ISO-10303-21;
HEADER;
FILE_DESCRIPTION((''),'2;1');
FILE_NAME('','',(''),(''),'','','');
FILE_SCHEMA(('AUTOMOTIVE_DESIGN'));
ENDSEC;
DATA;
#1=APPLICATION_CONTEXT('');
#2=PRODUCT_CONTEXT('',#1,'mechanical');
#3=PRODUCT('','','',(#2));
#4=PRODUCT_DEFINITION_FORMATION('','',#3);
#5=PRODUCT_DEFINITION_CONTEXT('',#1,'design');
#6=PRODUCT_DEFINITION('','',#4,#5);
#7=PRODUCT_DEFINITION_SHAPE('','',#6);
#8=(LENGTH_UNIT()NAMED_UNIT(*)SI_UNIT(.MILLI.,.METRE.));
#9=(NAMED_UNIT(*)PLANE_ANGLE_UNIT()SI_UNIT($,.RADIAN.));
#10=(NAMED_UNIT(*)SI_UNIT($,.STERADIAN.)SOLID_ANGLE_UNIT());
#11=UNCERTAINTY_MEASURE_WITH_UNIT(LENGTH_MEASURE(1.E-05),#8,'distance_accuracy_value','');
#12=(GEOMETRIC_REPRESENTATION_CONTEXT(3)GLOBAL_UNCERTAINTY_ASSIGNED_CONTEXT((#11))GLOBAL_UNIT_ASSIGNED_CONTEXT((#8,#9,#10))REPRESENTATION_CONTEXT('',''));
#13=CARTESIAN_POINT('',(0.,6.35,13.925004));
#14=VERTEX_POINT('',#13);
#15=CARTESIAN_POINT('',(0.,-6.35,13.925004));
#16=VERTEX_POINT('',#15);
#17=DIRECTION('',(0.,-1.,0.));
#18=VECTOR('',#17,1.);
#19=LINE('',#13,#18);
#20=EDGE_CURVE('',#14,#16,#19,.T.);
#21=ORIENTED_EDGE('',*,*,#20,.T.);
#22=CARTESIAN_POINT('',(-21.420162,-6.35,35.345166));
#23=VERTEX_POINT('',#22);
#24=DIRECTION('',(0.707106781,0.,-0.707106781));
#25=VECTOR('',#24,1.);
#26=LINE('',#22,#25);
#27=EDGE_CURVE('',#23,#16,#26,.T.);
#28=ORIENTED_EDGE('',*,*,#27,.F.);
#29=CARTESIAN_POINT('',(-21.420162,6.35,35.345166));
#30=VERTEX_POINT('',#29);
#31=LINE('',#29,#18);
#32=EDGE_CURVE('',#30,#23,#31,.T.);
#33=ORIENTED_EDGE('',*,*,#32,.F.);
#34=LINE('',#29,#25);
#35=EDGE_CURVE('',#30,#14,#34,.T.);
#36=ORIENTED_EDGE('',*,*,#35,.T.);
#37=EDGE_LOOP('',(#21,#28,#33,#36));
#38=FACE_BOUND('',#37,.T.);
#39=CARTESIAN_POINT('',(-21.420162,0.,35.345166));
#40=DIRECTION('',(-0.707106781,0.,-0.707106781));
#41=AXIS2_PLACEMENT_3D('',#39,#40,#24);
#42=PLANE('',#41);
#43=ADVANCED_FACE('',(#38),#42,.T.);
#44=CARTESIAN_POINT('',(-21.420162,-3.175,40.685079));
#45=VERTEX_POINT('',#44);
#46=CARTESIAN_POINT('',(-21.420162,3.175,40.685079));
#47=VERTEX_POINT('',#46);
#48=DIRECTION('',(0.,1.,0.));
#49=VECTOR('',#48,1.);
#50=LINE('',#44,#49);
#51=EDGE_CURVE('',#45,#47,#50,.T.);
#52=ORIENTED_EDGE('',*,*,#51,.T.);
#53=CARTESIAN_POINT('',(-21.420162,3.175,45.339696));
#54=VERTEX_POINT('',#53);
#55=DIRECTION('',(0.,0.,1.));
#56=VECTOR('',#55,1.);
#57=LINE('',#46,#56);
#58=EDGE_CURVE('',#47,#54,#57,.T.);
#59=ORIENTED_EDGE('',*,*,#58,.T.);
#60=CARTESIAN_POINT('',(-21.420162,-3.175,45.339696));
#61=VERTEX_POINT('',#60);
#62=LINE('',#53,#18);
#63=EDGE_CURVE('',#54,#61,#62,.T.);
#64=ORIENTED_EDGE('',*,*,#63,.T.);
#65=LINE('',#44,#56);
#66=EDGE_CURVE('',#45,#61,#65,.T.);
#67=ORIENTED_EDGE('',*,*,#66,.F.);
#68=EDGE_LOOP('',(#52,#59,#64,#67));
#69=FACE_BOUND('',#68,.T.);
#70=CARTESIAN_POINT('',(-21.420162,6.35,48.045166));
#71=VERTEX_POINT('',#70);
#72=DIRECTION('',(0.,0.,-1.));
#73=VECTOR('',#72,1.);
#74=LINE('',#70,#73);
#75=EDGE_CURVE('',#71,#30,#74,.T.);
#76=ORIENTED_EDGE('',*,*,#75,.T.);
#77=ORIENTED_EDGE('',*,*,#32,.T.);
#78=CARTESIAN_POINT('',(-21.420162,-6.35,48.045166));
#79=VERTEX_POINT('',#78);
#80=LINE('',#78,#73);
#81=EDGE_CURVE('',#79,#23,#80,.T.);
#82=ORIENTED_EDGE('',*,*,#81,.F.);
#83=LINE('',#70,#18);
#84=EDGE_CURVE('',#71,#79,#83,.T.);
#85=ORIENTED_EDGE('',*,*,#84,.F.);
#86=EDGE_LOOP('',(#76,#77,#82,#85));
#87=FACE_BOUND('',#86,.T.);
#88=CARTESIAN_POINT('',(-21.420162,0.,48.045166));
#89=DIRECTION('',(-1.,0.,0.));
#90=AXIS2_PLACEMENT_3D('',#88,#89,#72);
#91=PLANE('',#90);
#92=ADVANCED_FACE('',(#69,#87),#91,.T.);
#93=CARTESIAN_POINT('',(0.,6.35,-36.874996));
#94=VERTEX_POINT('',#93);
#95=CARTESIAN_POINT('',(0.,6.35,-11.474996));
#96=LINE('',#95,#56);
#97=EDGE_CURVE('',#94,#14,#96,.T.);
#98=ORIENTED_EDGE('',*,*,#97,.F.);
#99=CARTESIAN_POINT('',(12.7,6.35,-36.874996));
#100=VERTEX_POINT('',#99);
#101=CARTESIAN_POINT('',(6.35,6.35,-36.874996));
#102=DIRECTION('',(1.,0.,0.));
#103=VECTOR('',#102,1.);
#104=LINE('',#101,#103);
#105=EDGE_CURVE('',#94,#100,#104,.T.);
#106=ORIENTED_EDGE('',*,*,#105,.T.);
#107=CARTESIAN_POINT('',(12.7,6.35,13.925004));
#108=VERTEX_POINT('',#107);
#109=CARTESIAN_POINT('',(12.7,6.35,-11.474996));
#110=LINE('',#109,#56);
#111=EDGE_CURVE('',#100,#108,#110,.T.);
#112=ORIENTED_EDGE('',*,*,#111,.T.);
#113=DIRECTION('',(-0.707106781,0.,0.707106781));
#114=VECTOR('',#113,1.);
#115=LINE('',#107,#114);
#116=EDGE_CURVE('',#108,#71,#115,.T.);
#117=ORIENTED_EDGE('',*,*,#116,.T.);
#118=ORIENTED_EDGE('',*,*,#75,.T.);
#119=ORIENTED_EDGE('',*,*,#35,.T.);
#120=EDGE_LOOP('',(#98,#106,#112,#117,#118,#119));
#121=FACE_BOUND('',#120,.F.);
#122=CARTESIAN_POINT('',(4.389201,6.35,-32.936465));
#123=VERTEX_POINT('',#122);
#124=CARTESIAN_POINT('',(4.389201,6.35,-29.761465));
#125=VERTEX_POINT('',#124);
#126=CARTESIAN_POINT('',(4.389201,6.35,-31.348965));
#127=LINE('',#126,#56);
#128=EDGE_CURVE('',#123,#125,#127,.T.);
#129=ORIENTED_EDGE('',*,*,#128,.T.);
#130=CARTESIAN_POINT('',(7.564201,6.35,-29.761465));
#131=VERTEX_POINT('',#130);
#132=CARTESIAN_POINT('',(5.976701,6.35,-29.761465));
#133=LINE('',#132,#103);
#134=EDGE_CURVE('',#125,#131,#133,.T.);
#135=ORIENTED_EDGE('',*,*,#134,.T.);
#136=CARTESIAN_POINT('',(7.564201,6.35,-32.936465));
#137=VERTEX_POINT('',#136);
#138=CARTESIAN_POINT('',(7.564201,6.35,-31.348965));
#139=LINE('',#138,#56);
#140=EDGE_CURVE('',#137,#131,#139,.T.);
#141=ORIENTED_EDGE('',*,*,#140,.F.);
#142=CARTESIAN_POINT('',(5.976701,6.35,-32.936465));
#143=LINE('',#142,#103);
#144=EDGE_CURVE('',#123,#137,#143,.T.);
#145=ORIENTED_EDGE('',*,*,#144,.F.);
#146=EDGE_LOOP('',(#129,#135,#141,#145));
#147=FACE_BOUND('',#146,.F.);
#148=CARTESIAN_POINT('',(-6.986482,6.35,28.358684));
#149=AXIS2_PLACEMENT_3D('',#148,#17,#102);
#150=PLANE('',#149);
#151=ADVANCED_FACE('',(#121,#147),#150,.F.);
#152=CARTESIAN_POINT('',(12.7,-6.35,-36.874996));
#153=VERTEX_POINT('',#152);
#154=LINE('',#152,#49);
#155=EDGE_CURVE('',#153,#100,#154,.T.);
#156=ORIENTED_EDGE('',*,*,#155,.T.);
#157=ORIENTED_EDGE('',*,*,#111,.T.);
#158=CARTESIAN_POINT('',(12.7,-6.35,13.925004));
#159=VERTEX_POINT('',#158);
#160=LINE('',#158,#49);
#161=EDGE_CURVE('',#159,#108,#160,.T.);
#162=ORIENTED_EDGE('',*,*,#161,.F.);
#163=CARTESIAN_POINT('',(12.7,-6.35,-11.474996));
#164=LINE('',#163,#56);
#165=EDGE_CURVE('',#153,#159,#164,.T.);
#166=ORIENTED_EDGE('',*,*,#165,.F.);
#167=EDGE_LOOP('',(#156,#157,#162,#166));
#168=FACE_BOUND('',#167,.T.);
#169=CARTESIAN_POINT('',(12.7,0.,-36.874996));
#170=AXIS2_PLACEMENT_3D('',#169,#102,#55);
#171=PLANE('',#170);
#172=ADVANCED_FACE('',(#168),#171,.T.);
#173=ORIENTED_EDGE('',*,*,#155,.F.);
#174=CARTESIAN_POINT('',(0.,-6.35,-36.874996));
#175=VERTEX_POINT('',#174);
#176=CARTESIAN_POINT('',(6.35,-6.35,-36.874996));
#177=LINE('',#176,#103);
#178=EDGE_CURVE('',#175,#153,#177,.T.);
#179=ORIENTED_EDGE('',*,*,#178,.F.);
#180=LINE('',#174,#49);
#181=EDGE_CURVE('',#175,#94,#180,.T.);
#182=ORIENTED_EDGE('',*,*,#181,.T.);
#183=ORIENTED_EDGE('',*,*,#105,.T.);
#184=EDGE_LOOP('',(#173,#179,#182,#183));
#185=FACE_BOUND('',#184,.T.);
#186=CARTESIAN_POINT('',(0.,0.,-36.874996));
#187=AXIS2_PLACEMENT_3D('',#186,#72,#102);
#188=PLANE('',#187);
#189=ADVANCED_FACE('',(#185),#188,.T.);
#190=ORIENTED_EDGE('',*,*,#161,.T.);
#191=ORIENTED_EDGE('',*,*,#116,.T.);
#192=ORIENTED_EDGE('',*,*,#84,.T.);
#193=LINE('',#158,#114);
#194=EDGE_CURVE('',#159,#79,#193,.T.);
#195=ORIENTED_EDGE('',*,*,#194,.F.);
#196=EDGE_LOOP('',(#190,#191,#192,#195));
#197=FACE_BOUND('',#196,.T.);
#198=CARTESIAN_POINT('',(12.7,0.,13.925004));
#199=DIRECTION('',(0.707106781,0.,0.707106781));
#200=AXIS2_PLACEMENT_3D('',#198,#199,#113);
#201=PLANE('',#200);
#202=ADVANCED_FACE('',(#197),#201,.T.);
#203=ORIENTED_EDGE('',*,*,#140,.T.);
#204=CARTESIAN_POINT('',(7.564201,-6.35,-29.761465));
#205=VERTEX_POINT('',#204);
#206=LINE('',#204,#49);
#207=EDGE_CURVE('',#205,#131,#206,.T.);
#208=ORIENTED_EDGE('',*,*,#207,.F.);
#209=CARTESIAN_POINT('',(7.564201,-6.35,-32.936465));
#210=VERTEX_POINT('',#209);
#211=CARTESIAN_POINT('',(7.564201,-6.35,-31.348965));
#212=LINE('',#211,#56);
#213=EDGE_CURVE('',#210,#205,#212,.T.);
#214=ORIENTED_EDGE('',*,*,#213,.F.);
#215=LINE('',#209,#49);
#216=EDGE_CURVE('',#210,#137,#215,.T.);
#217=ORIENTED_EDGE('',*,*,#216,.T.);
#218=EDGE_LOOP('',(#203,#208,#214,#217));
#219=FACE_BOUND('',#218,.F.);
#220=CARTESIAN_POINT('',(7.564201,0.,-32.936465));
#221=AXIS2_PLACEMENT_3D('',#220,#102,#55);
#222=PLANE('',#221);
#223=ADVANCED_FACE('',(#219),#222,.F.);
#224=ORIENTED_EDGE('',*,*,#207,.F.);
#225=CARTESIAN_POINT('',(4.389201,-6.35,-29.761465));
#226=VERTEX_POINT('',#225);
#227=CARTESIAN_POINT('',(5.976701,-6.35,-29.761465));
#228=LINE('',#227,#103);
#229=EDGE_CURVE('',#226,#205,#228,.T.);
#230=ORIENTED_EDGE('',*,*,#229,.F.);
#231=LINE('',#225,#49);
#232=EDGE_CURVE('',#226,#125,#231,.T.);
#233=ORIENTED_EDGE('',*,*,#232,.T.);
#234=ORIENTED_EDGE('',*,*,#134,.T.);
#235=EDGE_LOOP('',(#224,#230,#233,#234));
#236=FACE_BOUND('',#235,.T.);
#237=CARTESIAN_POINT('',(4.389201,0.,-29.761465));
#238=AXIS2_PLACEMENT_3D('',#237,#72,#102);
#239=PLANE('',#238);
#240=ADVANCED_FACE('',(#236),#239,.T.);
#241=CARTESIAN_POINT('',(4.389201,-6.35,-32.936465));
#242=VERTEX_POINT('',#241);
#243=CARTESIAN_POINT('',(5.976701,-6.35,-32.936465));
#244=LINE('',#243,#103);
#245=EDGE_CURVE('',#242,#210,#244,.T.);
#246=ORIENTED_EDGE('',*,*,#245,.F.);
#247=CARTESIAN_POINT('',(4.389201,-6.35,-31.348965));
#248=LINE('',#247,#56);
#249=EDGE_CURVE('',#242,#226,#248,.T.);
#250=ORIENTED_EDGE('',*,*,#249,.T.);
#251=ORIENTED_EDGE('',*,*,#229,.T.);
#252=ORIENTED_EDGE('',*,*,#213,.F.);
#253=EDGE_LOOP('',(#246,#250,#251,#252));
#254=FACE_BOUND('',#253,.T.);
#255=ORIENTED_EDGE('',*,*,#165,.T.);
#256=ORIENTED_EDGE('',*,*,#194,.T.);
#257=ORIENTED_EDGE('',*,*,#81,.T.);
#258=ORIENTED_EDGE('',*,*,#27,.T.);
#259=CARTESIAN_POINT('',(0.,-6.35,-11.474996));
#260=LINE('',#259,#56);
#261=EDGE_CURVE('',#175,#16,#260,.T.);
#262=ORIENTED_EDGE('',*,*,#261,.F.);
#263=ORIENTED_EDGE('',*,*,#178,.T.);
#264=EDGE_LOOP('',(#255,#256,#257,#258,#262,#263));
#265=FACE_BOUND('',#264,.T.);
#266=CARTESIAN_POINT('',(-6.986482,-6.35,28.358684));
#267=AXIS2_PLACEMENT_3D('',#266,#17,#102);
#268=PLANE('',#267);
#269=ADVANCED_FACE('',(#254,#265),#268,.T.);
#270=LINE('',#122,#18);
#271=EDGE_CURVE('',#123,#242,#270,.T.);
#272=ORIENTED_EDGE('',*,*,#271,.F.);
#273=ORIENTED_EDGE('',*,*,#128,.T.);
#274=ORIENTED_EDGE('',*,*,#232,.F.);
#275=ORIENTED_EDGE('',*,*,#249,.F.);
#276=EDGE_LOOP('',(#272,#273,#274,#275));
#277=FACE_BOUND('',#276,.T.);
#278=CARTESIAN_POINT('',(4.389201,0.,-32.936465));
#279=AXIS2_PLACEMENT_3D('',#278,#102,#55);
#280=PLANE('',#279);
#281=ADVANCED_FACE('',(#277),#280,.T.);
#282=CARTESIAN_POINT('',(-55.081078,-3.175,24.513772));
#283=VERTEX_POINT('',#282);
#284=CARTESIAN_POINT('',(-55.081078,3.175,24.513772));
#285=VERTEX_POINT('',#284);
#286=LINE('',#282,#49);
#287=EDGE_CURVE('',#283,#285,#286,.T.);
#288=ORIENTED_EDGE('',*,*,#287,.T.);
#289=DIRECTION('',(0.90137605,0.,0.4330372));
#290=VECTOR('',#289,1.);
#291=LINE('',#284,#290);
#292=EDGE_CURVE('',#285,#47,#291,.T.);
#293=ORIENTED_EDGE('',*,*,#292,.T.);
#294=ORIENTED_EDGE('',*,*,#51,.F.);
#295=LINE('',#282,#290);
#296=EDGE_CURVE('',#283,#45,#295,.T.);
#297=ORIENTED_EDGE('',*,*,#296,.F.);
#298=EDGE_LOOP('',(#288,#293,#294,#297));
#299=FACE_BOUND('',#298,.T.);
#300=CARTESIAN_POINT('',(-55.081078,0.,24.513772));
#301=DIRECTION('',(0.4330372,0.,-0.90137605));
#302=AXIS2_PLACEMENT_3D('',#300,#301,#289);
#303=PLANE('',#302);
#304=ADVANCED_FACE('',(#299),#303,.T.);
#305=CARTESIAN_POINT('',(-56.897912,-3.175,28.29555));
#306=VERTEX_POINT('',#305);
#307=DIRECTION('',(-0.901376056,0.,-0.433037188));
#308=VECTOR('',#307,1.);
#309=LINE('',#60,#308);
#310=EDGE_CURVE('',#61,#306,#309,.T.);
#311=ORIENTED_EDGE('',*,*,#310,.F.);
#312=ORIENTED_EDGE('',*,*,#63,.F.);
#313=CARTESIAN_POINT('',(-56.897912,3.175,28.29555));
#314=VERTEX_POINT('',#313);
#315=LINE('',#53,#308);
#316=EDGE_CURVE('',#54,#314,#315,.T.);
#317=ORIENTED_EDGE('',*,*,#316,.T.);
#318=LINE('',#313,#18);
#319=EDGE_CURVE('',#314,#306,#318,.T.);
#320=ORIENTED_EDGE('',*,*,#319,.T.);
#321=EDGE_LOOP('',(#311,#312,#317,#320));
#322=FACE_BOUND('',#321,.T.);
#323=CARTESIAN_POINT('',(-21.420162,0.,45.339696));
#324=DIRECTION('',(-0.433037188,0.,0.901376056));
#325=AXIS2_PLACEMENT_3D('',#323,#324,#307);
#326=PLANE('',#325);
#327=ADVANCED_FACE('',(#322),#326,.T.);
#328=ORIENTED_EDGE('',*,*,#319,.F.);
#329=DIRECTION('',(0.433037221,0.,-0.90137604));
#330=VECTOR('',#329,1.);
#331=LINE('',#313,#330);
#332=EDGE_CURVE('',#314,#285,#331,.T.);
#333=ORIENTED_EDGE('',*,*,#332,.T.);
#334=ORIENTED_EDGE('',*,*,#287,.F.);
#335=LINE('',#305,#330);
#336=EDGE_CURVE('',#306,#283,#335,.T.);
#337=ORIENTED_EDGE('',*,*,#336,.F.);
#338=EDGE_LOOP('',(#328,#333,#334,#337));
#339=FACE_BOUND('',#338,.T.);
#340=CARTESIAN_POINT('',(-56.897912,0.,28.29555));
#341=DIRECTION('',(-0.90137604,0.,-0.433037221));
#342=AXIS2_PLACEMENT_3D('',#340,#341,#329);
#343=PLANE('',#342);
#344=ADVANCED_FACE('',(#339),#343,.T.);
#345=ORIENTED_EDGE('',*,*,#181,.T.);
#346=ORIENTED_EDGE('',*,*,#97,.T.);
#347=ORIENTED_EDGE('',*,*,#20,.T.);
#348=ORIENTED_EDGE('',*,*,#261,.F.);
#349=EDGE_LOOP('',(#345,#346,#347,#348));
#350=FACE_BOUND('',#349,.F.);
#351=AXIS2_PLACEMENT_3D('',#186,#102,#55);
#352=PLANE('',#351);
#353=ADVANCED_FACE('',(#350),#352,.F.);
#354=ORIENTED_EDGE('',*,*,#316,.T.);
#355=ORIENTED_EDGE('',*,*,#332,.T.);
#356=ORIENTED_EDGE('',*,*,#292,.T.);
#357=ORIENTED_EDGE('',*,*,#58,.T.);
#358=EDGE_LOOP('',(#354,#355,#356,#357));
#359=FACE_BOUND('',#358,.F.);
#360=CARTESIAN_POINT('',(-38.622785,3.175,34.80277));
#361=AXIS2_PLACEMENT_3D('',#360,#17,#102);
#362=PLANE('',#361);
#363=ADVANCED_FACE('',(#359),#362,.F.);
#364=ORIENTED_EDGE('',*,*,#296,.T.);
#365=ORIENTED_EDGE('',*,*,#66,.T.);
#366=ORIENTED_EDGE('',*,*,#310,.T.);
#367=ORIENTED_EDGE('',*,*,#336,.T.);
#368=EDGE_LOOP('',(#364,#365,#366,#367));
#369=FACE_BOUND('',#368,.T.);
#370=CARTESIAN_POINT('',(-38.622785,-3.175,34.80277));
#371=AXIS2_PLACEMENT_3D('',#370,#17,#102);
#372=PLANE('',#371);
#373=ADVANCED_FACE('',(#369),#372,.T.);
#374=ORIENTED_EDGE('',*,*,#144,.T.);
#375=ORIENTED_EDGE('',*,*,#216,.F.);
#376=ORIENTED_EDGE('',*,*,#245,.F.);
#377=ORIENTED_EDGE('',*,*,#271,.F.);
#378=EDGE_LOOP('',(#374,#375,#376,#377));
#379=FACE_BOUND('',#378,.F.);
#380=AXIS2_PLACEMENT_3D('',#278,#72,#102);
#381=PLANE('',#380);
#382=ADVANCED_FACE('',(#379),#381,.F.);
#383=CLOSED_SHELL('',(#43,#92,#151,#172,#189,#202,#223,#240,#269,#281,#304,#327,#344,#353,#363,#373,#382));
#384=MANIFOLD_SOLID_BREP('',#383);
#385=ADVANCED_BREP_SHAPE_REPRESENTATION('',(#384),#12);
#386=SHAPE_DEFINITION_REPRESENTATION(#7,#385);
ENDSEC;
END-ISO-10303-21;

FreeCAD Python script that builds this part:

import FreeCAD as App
import Part
import Sketcher
from FreeCAD import Vector
Q = App.Units.Quantity

doc = App.newDocument("Part")
body = doc.addObject("PartDesign::Body", "Body")

sketch1 = body.newObject("Sketcher::SketchObject", "Sketch")
sketch1.AttachmentSupport = (doc.getObject("XZ_Plane"), [""])
sketch1.MapMode = "FlatFace"
sketch1.addGeometry([
    Part.LineSegment(Vector(12.7, 13.9, 0), Vector(-21.4, 48, 0)),
    Part.LineSegment(Vector(-21.4, 48, 0), Vector(-21.4, 35.3, 0)),
    Part.LineSegment(Vector(-21.4, 35.3, 0), Vector(0, 13.9, 0)),
    Part.LineSegment(Vector(0, 13.9, 0), Vector(0, -36.9, 0)),
    Part.LineSegment(Vector(0, -36.9, 0), Vector(12.7, -36.9, 0)),
    Part.LineSegment(Vector(12.7, -36.9, 0), Vector(12.7, 13.9, 0)),
    Part.LineSegment(Vector(7.6, -32.9, 0), Vector(4.4, -32.9, 0)),
    Part.LineSegment(Vector(4.4, -32.9, 0), Vector(4.4, -29.8, 0)),
    Part.LineSegment(Vector(4.4, -29.8, 0), Vector(7.6, -29.8, 0)),
    Part.LineSegment(Vector(7.6, -29.8, 0), Vector(7.6, -32.9, 0)),
], False)
sketch1.addConstraint([
    Sketcher.Constraint("Coincident", 0, 2, 1, 1),
    Sketcher.Constraint("Coincident", 1, 2, 2, 1),
    Sketcher.Constraint("Coincident", 2, 2, 3, 1),
    Sketcher.Constraint("Coincident", 3, 2, 4, 1),
    Sketcher.Constraint("Coincident", 4, 2, 5, 1),
    Sketcher.Constraint("Coincident", 5, 2, 0, 1),
    Sketcher.Constraint("Coincident", 6, 2, 7, 1),
    Sketcher.Constraint("Coincident", 7, 2, 8, 1),
    Sketcher.Constraint("Coincident", 8, 2, 9, 1),
    Sketcher.Constraint("Coincident", 9, 2, 6, 1),
    Sketcher.Constraint("Vertical", 1),
    Sketcher.Constraint("Vertical", 3),
    Sketcher.Constraint("Horizontal", 4),
    Sketcher.Constraint("Vertical", 5),
    Sketcher.Constraint("Horizontal", 6),
    Sketcher.Constraint("Vertical", 7),
    Sketcher.Constraint("Horizontal", 8),
    Sketcher.Constraint("Vertical", 9),
    Sketcher.Constraint("PointOnObject", 2, 2, -2),
    Sketcher.Constraint("Parallel", 0, 2),
    Sketcher.Constraint("Horizontal", 2, 2, 5, 2),
    Sketcher.Constraint("Equal", 4, 1),
    Sketcher.Constraint("Equal", 8, 7),
    Sketcher.Constraint("DistanceY", 3, 2, 3, 1, Q("2 in")),
    Sketcher.Constraint("DistanceX", 4, 1, 4, 2, Q("0.5 in")),
    Sketcher.Constraint("DistanceX", 6, 2, 6, 1, Q("0.125 in")),
    Sketcher.Constraint("DistanceX", -1, 1, 6, 2, Q("4.389201 mm")),
    Sketcher.Constraint("DistanceY", 2, 2, 1, 2, Q("21.420162 mm")),
    Sketcher.Constraint("DistanceY", 3, 2, 6, 2, Q("3.938531 mm")),
    Sketcher.Constraint("DistanceY", -1, 1, 0, 2, Q("48.045166 mm")),
])
pad1 = body.newObject("PartDesign::Pad", "Pad")
pad1.Profile = sketch1
pad1.Length = Q("0.5 in")
pad1.Midplane = True

sketch2 = body.newObject("Sketcher::SketchObject", "Sketch001")
sketch2.AttachmentSupport = (doc.getObject("XZ_Plane"), [""])
sketch2.MapMode = "FlatFace"
sketch2.addGeometry([
    Part.LineSegment(Vector(-21.4, 40.7, 0), Vector(-21.4, 45.3, 0)),
    Part.LineSegment(Vector(-21.4, 45.3, 0), Vector(-56.9, 28.3, 0)),
    Part.LineSegment(Vector(-56.9, 28.3, 0), Vector(-55.1, 24.5, 0)),
    Part.LineSegment(Vector(-55.1, 24.5, 0), Vector(-21.4, 40.7, 0)),
], False)
sketch2.addConstraint([
    Sketcher.Constraint("Coincident", 0, 2, 1, 1),
    Sketcher.Constraint("Coincident", 1, 2, 2, 1),
    Sketcher.Constraint("Coincident", 2, 2, 3, 1),
    Sketcher.Constraint("Coincident", 3, 2, 0, 1),
    Sketcher.Constraint("Vertical", 0),
    Sketcher.Constraint("Perpendicular", 1, 2),
    Sketcher.Constraint("Perpendicular", 2, 3),
    Sketcher.Constraint("Distance", 2, Q("4.195561 mm")),
    Sketcher.Constraint("Distance", 3, Q("37.343921 mm")),
    Sketcher.Constraint("DistanceY", 0, 1, 0, 2, Q("4.654617 mm")),
    Sketcher.Constraint("DistanceX", 1, 2, -1, 1, Q("56.897912 mm")),
    Sketcher.Constraint("DistanceY", -1, 1, 1, 2, Q("28.29555 mm")),
])
pad2 = body.newObject("PartDesign::Pad", "Pad001")
pad2.Profile = sketch2
pad2.Length = Q("0.25 in")
pad2.Midplane = True

doc.recompute()
